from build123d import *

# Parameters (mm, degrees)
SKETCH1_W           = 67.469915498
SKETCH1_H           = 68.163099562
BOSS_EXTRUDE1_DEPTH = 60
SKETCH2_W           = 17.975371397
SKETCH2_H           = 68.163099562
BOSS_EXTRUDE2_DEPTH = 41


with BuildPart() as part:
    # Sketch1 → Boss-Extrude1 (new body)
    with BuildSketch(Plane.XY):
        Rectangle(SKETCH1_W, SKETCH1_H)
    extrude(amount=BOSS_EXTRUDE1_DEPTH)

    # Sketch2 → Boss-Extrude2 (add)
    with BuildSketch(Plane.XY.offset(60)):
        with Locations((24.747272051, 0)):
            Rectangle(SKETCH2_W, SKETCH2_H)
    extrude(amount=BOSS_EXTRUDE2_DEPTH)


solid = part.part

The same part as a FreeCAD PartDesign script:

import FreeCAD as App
import Part
import Sketcher

V = App.Vector
Q = App.Units.Quantity


def add_polygon(sketch, points):
    """Adds a closed chain of lines whose ends are joined by coincident constraints."""
    first, n = sketch.GeometryCount, len(points)
    for a, b in zip(points, points[1:] + points[:1]):
        sketch.addGeometry(Part.LineSegment(App.Vector(*a, 0), App.Vector(*b, 0)), False)
    for i in range(n):
        sketch.addConstraint(Sketcher.Constraint("Coincident", first + i, 2, first + (i + 1) % n, 1))

doc = App.newDocument("Part")
body = doc.addObject("PartDesign::Body", "Body")

# Sketch on XY plane
sketch1 = body.newObject("Sketcher::SketchObject", "Sketch")
sketch1.AttachmentSupport = (doc.getObject("XY_Plane"), [""])
sketch1.MapMode = "FlatFace"
add_polygon(sketch1, [(-34, 34), (-34, -34), (34, -34), (34, 34)])  # lines 0-3
sketch1.addConstraint([
    Sketcher.Constraint("Vertical", 0),
    Sketcher.Constraint("Horizontal", 1),
    Sketcher.Constraint("Vertical", 2),
    Sketcher.Constraint("Horizontal", 3),
    Sketcher.Constraint("Symmetric", 0, 2, 2, 2, -1, 1),
    Sketcher.Constraint("DistanceY", 0, 2, 0, 1, Q("68.1631 mm")),
    Sketcher.Constraint("DistanceX", 1, 1, 1, 2, Q("67.469915 mm")),
])
pad1 = body.newObject("PartDesign::Pad", "Pad")
pad1.Profile = sketch1
pad1.Length = 60

# Sketch on XY plane
sketch2 = body.newObject("Sketcher::SketchObject", "Sketch001")
sketch2.AttachmentSupport = (doc.getObject("XY_Plane"), [""])
sketch2.MapMode = "FlatFace"
sketch2.AttachmentOffset = App.Placement(V(0, 0, 60), App.Rotation())
add_polygon(sketch2, [(16, 34), (16, -34), (34, -34), (34, 34)])  # lines 0-3
sketch2.addConstraint([
    Sketcher.Constraint("Vertical", 0),
    Sketcher.Constraint("Horizontal", 1),
    Sketcher.Constraint("Vertical", 2),
    Sketcher.Constraint("Horizontal", 3),
    Sketcher.Constraint("DistanceY", 0, 2, 0, 1, Q("68.1631 mm")),
    Sketcher.Constraint("DistanceX", 1, 1, 1, 2, Q("17.975371 mm")),
    Sketcher.Constraint("DistanceY", 0, 2, -1, 1, Q("34.08155 mm")),
    Sketcher.Constraint("DistanceX", -1, 1, 0, 2, Q("15.759586 mm")),
])
pad2 = body.newObject("PartDesign::Pad", "Pad001")
pad2.Profile = sketch2
pad2.Length = 41

doc.recompute()
